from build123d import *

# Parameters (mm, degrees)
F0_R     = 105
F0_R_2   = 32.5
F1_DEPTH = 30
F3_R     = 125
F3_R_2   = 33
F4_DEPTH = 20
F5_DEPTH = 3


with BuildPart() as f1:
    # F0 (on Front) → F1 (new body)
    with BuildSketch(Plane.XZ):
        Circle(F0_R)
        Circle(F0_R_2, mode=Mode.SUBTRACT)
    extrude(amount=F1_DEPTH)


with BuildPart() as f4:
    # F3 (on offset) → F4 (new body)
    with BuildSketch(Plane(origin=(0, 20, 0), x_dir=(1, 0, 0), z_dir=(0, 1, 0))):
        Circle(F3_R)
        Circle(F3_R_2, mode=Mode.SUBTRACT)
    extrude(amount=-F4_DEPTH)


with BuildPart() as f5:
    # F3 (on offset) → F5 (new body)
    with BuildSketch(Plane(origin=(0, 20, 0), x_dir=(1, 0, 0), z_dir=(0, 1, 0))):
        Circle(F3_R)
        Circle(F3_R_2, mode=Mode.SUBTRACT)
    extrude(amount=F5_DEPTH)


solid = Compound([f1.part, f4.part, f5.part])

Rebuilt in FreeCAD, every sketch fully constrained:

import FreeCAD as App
import Part
import Sketcher

V = App.Vector

doc = App.newDocument("Part")
params = doc.addObject("Spreadsheet::Sheet", "Params")
for row, (alias, value) in enumerate([
    ("sketch1_diameter", "210 mm"),
    ("sketch1_diameter2", "65 mm"),
    ("pad1_length", "30 mm"),
    ("sketch2_diameter", "250 mm"),
    ("sketch2_diameter2", "66 mm"),
    ("pad2_length", "20 mm"),
    ("sketch3_diameter", "250 mm"),
    ("sketch3_diameter2", "66 mm"),
    ("pad3_length", "3 mm"),
], start=1):
    params.set(f"A{row}", alias)
    params.set(f"B{row}", "=" + value)
    params.setAlias(f"B{row}", alias)

body = doc.addObject("PartDesign::Body", "Body")

# Sketch on XZ plane
sketch1 = body.newObject("Sketcher::SketchObject", "Sketch")
sketch1.AttachmentSupport = (doc.getObject("XZ_Plane"), [""])
sketch1.MapMode = "FlatFace"
sketch1.addGeometry([
    Part.Circle(V(0, 0, 0), V(0, 0, 1), 105),
    Part.Circle(V(0, 0, 0), V(0, 0, 1), 32),
], False)
sketch1.addConstraint([
    Sketcher.Constraint("Coincident", 0, 3, -1, 1),
    Sketcher.Constraint("Coincident", 1, 3, -1, 1),
    Sketcher.Constraint("Diameter", 0, 210.0),
    Sketcher.Constraint("Diameter", 1, 65.0),
])
sketch1.setExpression("Constraints[2]", "Params.sketch1_diameter")
sketch1.setExpression("Constraints[3]", "Params.sketch1_diameter2")
pad1 = body.newObject("PartDesign::Pad", "Pad")
pad1.Profile = sketch1
pad1.setExpression("Length", "Params.pad1_length")
body2 = doc.addObject("PartDesign::Body", "Body001")

# Sketch on XZ plane
sketch2 = body2.newObject("Sketcher::SketchObject", "Sketch001")
sketch2.AttachmentSupport = (doc.getObject("XZ_Plane001"), [""])
sketch2.MapMode = "FlatFace"
sketch2.AttachmentOffset = App.Placement(V(0, 0, -20), App.Rotation())
sketch2.addGeometry([
    Part.Circle(V(0, 0, 0), V(0, 0, 1), 125),
    Part.Circle(V(0, 0, 0), V(0, 0, 1), 33),
], False)
sketch2.addConstraint([
    Sketcher.Constraint("Coincident", 0, 3, -1, 1),
    Sketcher.Constraint("Coincident", 1, 3, -1, 1),
    Sketcher.Constraint("Diameter", 0, 250.0),
    Sketcher.Constraint("Diameter", 1, 66.0),
])
sketch2.setExpression("Constraints[2]", "Params.sketch2_diameter")
sketch2.setExpression("Constraints[3]", "Params.sketch2_diameter2")
pad2 = body2.newObject("PartDesign::Pad", "Pad001")
pad2.Profile = sketch2
pad2.setExpression("Length", "Params.pad2_length")
body3 = doc.addObject("PartDesign::Body", "Body002")

# Sketch on XZ plane
sketch3 = body3.newObject("Sketcher::SketchObject", "Sketch002")
sketch3.AttachmentSupport = (doc.getObject("XZ_Plane002"), [""])
sketch3.MapMode = "FlatFace"
sketch3.AttachmentOffset = App.Placement(V(0, 0, -20), App.Rotation())
sketch3.addGeometry([
    Part.Circle(V(0, 0, 0), V(0, 0, 1), 125),
    Part.Circle(V(0, 0, 0), V(0, 0, 1), 33),
], False)
sketch3.addConstraint([
    Sketcher.Constraint("Coincident", 0, 3, -1, 1),
    Sketcher.Constraint("Coincident", 1, 3, -1, 1),
    Sketcher.Constraint("Diameter", 0, 250.0),
    Sketcher.Constraint("Diameter", 1, 66.0),
])
sketch3.setExpression("Constraints[2]", "Params.sketch3_diameter")
sketch3.setExpression("Constraints[3]", "Params.sketch3_diameter2")
pad3 = body3.newObject("PartDesign::Pad", "Pad002")
pad3.Profile = sketch3
pad3.setExpression("Length", "Params.pad3_length")
pad3.Reversed = True

doc.recompute()
